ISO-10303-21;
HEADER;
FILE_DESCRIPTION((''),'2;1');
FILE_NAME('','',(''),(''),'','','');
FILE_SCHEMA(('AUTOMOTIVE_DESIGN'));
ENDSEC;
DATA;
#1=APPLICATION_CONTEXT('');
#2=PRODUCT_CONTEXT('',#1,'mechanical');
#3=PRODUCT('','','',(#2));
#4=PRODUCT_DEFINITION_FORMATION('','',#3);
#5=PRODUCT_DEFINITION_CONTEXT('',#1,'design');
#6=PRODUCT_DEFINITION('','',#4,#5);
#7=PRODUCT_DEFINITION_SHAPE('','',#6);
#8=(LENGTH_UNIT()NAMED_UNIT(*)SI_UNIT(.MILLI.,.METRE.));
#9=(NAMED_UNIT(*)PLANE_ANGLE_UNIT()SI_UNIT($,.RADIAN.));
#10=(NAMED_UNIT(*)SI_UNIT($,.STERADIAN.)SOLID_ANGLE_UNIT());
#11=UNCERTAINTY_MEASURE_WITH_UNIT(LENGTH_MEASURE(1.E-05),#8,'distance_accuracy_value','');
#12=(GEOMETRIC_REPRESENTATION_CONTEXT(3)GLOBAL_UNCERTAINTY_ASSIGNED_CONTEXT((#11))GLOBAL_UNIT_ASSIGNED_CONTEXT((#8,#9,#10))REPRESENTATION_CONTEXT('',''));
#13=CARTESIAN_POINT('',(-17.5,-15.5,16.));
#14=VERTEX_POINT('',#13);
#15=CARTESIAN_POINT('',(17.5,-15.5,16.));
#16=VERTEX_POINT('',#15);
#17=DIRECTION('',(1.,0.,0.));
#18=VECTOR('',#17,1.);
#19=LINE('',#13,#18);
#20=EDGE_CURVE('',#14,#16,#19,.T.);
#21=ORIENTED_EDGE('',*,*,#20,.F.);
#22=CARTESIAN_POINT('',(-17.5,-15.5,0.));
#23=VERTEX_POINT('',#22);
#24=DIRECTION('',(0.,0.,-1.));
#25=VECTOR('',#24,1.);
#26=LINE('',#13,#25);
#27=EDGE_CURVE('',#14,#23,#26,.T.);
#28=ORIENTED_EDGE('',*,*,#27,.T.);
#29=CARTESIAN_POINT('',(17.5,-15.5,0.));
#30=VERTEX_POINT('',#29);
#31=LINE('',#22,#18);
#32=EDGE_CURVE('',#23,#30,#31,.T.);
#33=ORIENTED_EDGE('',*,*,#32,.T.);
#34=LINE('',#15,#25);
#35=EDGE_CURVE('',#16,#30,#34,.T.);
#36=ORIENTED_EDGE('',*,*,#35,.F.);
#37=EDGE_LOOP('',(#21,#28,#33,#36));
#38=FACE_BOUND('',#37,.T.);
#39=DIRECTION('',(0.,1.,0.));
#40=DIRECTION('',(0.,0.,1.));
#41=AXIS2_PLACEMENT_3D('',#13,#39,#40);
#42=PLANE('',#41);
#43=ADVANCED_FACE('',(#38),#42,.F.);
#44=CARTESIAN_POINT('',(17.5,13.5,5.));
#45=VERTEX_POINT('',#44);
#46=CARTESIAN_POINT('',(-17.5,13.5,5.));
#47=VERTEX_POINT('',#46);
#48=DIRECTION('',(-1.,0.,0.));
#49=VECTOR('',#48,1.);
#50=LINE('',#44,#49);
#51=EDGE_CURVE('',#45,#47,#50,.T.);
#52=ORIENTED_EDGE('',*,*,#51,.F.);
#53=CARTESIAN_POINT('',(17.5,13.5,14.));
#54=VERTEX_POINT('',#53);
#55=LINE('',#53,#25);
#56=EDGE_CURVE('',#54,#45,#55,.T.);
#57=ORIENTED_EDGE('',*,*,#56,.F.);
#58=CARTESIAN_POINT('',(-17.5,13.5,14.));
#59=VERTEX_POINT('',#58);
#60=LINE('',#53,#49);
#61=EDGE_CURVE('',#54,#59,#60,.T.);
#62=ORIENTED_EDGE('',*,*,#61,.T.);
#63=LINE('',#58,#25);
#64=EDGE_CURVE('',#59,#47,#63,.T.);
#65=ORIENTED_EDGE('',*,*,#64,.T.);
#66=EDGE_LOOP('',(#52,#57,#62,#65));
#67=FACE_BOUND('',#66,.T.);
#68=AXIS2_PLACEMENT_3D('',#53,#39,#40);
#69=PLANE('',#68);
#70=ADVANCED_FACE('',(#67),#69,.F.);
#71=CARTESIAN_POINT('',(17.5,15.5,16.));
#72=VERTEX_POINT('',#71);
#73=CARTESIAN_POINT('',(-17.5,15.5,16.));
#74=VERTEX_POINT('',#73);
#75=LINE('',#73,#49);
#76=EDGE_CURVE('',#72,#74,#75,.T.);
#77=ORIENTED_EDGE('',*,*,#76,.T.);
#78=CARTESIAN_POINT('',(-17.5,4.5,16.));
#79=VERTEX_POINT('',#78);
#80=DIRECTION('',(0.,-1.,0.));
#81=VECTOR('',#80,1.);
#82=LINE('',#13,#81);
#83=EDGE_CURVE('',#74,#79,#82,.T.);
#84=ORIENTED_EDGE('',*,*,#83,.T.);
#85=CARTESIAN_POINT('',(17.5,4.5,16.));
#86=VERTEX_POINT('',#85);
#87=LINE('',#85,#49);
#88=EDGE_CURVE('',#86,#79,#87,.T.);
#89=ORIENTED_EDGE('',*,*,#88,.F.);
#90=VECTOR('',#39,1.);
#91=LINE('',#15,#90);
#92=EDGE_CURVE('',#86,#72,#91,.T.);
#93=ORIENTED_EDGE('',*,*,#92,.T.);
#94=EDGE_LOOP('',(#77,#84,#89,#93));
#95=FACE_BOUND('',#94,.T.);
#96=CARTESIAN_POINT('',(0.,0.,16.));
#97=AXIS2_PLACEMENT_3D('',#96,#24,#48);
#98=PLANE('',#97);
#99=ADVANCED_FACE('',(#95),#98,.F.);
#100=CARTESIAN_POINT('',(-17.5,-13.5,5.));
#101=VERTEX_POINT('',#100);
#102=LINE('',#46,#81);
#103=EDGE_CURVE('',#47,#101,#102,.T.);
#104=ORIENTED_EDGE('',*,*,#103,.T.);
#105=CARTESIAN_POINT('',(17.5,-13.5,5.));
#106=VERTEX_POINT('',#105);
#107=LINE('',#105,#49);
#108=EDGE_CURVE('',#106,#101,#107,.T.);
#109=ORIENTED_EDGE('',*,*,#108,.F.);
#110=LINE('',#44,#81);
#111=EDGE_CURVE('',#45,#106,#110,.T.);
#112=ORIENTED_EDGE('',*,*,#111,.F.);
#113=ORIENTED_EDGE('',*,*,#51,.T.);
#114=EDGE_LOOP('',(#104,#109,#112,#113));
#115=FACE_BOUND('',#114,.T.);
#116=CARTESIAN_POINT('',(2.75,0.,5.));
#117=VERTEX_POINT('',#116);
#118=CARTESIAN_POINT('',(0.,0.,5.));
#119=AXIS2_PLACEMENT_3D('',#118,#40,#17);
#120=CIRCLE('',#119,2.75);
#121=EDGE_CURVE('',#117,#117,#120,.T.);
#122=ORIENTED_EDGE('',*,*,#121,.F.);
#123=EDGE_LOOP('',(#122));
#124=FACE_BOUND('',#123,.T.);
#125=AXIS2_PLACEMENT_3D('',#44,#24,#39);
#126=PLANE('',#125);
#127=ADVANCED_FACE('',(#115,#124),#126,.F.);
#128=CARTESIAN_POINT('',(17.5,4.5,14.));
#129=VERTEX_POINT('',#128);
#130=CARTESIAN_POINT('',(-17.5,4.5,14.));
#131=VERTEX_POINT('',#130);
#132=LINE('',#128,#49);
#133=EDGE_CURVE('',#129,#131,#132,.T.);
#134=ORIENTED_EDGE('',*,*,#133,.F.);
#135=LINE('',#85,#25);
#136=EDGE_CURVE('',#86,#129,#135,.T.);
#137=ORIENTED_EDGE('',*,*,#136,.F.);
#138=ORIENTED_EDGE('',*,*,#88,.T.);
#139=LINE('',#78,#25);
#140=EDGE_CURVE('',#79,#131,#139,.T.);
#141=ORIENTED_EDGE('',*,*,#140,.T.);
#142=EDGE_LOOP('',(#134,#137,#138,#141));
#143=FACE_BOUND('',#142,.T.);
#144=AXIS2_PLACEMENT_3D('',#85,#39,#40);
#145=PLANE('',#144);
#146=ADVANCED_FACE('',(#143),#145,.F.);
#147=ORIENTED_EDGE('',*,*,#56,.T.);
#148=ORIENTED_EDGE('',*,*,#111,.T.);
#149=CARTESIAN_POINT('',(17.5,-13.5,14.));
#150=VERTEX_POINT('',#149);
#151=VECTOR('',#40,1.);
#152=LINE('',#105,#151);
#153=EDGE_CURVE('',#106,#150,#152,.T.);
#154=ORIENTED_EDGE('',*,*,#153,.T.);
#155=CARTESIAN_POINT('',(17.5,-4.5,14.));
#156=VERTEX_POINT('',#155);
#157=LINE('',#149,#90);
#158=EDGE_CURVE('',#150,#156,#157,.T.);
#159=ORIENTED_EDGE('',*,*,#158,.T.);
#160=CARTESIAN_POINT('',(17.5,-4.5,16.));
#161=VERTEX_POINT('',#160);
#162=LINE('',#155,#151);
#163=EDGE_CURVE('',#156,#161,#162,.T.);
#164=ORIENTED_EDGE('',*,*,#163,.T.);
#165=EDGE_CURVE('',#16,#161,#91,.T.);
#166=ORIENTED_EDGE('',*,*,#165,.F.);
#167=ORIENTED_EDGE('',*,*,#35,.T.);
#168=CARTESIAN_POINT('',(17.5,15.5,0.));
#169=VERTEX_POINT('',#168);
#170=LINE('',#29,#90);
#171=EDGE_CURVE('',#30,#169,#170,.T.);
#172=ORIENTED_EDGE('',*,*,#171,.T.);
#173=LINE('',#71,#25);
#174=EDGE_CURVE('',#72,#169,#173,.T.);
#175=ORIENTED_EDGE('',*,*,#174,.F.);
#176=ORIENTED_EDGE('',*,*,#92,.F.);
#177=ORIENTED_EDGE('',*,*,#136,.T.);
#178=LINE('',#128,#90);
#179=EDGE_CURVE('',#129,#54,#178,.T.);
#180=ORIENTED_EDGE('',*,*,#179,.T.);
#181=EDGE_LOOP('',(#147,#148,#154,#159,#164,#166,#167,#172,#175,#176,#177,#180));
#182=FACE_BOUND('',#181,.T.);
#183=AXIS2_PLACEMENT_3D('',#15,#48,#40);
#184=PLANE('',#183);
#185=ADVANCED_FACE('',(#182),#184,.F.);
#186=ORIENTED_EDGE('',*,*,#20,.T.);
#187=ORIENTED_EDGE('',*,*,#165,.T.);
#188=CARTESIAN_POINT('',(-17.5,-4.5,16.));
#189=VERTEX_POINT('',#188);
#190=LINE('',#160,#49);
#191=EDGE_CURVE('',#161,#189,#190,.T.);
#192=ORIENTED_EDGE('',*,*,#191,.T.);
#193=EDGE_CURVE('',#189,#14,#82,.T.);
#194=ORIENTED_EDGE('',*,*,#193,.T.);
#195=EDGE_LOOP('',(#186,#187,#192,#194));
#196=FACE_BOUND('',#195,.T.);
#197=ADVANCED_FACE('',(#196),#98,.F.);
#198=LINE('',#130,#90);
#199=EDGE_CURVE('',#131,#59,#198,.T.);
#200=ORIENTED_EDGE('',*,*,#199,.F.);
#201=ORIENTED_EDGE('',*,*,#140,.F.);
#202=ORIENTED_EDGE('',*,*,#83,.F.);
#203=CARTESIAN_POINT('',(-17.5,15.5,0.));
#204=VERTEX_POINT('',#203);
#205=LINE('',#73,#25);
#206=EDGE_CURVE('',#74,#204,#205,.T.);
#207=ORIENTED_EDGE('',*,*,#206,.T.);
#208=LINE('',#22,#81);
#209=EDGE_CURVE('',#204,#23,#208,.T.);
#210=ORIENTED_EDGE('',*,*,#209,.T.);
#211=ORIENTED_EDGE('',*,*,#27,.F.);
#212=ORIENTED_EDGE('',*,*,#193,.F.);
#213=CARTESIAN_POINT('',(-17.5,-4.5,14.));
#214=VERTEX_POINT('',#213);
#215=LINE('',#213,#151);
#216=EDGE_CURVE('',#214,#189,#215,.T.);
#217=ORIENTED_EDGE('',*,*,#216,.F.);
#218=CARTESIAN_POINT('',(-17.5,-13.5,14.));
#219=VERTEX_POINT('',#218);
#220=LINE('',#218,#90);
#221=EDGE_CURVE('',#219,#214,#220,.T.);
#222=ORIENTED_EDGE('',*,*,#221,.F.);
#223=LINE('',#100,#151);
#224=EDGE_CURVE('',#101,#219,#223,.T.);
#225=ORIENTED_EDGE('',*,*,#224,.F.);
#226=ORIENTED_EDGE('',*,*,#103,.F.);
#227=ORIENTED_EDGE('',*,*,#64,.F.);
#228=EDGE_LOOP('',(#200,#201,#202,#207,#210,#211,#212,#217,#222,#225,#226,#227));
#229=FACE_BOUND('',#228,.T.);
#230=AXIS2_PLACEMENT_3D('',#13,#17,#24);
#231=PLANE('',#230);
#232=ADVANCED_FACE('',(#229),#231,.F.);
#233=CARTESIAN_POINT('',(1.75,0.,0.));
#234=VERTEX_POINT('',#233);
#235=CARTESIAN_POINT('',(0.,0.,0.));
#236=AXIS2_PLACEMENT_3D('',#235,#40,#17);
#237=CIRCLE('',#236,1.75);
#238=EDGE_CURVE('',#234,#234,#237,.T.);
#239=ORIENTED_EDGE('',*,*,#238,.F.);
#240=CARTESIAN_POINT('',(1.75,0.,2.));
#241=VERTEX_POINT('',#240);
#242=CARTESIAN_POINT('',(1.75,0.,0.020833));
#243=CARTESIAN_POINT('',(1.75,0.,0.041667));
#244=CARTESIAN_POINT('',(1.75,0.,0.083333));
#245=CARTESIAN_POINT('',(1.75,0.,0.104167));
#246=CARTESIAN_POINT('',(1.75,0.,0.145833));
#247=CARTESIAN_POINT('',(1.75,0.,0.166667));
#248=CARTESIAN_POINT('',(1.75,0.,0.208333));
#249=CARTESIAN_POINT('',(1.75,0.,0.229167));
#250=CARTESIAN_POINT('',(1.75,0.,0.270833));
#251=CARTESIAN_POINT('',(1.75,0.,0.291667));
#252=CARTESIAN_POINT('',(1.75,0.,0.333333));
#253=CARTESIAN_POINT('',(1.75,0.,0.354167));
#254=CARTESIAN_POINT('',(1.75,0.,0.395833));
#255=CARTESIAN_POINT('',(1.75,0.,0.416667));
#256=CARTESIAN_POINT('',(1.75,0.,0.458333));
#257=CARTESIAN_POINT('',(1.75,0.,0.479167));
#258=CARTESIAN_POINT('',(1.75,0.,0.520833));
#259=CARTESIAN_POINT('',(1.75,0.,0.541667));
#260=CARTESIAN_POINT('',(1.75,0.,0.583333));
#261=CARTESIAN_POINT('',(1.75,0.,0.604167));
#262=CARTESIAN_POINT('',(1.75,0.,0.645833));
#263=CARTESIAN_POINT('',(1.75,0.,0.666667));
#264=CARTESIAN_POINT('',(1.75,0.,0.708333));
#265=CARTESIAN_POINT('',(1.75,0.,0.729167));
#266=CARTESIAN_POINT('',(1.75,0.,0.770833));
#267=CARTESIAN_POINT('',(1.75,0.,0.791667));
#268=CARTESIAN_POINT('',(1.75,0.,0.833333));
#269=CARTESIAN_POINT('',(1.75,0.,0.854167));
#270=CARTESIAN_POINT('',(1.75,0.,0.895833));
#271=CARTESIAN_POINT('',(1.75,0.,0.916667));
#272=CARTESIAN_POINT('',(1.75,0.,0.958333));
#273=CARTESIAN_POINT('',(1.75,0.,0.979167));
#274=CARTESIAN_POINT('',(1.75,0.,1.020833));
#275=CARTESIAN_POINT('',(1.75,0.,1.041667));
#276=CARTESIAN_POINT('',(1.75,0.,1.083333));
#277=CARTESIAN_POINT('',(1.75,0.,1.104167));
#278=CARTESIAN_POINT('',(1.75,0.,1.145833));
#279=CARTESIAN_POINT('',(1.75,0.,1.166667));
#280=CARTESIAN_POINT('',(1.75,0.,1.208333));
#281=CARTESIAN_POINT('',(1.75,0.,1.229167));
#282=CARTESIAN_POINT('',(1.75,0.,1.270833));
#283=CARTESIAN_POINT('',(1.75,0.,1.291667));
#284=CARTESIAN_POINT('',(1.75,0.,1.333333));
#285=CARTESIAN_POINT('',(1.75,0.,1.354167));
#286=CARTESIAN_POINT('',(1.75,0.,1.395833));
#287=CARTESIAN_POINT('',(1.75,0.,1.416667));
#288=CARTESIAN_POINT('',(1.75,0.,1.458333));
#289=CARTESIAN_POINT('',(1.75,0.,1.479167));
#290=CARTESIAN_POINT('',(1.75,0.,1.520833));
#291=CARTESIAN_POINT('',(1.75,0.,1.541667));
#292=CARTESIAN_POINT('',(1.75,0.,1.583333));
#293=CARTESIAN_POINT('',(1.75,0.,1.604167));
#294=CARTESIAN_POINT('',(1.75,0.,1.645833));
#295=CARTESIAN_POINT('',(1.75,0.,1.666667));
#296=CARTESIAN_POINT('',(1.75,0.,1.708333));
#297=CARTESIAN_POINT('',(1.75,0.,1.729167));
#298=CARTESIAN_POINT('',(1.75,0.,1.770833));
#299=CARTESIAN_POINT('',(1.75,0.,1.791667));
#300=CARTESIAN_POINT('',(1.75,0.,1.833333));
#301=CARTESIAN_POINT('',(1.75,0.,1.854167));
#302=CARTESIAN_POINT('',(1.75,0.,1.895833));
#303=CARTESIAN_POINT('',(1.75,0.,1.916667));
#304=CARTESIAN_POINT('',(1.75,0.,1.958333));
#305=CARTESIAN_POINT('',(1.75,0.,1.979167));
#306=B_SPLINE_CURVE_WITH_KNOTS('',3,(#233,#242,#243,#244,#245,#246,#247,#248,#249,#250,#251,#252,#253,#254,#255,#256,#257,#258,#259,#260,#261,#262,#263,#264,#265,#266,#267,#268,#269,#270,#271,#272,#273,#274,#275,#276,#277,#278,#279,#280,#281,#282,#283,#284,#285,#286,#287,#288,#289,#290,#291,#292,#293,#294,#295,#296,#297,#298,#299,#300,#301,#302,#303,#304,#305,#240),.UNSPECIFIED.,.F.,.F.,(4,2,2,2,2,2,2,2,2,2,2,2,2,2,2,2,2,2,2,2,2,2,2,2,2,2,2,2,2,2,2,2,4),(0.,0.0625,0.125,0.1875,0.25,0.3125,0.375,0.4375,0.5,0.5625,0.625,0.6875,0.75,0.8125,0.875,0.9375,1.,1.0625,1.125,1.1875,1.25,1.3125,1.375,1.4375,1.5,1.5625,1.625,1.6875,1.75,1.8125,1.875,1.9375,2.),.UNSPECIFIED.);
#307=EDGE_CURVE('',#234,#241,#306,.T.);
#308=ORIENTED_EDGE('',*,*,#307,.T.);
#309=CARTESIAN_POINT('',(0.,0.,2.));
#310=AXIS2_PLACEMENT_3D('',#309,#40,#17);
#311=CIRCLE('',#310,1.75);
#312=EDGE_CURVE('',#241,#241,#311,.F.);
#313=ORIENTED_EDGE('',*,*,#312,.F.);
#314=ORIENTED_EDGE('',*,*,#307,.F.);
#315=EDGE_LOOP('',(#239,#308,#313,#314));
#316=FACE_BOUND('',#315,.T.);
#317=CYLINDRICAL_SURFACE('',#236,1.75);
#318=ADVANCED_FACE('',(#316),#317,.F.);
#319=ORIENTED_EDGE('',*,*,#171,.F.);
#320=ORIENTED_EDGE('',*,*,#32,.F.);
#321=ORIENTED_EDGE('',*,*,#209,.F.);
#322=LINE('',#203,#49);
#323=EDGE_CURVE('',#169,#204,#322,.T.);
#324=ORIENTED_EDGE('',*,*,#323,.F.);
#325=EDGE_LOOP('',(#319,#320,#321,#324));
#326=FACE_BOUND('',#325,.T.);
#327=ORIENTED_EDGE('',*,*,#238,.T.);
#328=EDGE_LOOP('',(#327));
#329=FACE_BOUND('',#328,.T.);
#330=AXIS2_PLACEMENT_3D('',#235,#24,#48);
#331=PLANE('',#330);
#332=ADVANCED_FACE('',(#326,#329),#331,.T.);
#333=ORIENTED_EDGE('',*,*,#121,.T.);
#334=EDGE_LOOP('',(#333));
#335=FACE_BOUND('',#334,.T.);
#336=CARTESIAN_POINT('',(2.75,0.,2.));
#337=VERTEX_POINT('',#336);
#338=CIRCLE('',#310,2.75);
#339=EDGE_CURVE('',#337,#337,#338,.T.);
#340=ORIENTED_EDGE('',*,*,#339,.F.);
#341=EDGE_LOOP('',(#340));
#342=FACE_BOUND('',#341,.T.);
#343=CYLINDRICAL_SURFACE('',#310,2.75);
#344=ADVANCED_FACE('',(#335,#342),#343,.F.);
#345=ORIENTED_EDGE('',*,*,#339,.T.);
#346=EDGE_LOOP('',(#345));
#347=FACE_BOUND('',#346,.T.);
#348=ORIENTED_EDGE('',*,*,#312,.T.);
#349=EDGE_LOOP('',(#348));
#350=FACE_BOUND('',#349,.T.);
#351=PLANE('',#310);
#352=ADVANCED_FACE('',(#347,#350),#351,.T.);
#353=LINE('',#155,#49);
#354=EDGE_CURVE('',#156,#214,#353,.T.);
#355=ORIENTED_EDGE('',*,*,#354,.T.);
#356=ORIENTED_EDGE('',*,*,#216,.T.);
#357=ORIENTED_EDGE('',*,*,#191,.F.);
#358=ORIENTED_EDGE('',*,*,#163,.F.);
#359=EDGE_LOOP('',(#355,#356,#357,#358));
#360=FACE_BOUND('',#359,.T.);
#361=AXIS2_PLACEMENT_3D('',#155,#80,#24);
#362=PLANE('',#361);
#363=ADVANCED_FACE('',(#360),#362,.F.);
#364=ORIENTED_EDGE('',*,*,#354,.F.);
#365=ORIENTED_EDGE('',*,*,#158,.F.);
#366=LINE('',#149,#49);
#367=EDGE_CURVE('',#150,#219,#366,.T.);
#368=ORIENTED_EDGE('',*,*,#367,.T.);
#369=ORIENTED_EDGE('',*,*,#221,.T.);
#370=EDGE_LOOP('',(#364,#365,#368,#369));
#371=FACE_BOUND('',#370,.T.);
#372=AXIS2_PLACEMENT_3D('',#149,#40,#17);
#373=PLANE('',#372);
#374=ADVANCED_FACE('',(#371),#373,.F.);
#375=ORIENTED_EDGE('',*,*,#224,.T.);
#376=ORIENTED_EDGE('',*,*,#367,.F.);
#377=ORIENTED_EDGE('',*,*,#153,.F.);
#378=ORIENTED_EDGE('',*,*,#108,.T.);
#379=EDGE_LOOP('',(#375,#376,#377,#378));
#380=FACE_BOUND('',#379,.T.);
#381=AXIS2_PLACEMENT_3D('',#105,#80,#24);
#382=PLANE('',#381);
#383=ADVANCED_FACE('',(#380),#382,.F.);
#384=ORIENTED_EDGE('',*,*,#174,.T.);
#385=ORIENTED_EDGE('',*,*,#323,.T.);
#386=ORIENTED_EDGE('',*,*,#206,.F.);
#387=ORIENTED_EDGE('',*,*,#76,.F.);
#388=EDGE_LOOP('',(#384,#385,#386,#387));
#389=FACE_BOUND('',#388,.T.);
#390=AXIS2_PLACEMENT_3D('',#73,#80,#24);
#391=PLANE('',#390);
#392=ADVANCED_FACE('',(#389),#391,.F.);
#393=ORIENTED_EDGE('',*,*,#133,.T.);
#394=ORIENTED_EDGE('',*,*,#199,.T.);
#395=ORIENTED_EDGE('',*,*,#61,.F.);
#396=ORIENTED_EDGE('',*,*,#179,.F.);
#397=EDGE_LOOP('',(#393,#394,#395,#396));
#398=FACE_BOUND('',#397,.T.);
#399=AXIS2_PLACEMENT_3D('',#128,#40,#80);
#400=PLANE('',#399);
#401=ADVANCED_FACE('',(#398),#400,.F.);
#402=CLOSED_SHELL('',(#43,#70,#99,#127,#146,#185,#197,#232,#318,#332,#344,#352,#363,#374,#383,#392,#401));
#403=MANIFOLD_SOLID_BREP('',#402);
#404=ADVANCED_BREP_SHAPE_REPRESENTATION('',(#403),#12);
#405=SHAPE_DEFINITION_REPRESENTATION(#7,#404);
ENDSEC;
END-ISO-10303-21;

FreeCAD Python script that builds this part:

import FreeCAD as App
import Part
import Sketcher

doc = App.newDocument("Part")
body = doc.addObject("PartDesign::Body", "Body")

sketch1 = body.newObject("Sketcher::SketchObject", "Sketch")
sketch1.AttachmentSupport = (doc.getObject("XY_Plane"), [""])
sketch1.MapMode = "FlatFace"
sketch1.addGeometry([
    Part.LineSegment(App.Vector(-18, 16, 0), App.Vector(-18, -16, 0)),
    Part.LineSegment(App.Vector(-18, -16, 0), App.Vector(18, -16, 0)),
    Part.LineSegment(App.Vector(18, -16, 0), App.Vector(18, 16, 0)),
    Part.LineSegment(App.Vector(18, 16, 0), App.Vector(-18, 16, 0)),
], False)
sketch1.addConstraint([
    Sketcher.Constraint("Coincident", 0, 2, 1, 1),
    Sketcher.Constraint("Coincident", 1, 2, 2, 1),
    Sketcher.Constraint("Coincident", 2, 2, 3, 1),
    Sketcher.Constraint("Coincident", 3, 2, 0, 1),
    Sketcher.Constraint("Vertical", 0),
    Sketcher.Constraint("Horizontal", 1),
    Sketcher.Constraint("Vertical", 2),
    Sketcher.Constraint("Horizontal", 3),
    Sketcher.Constraint("Symmetric", 0, 2, 2, 2, -1, 1),
    Sketcher.Constraint("DistanceX", 1, 1, 1, 2, 35.0),
    Sketcher.Constraint("DistanceY", 0, 2, 0, 1, 31.0),
])
pad1 = body.newObject("PartDesign::Pad", "Pad")
pad1.Profile = sketch1
pad1.Length = 16

sketch2 = body.newObject("Sketcher::SketchObject", "Sketch001")
sketch2.AttachmentSupport = (doc.getObject("YZ_Plane"), [""])
sketch2.MapMode = "FlatFace"
sketch2.AttachmentOffset = App.Placement(App.Vector(0, 0, -17.5), App.Rotation())
sketch2.addGeometry([
    Part.LineSegment(App.Vector(13.5, 5, 0), App.Vector(-13.5, 5, 0)),
    Part.LineSegment(App.Vector(-13.5, 5, 0), App.Vector(-13.5, 14, 0)),
    Part.LineSegment(App.Vector(-13.5, 14, 0), App.Vector(-4.5, 14, 0)),
    Part.LineSegment(App.Vector(-4.5, 14, 0), App.Vector(-4.5, 16, 0)),
    Part.LineSegment(App.Vector(-4.5, 16, 0), App.Vector(4.5, 16, 0)),
    Part.LineSegment(App.Vector(4.5, 16, 0), App.Vector(4.5, 14, 0)),
    Part.LineSegment(App.Vector(4.5, 14, 0), App.Vector(13.5, 14, 0)),
    Part.LineSegment(App.Vector(13.5, 14, 0), App.Vector(13.5, 5, 0)),
], False)
sketch2.addConstraint([
    Sketcher.Constraint("Coincident", 0, 2, 1, 1),
    Sketcher.Constraint("Coincident", 1, 2, 2, 1),
    Sketcher.Constraint("Coincident", 2, 2, 3, 1),
    Sketcher.Constraint("Coincident", 3, 2, 4, 1),
    Sketcher.Constraint("Coincident", 4, 2, 5, 1),
    Sketcher.Constraint("Coincident", 5, 2, 6, 1),
    Sketcher.Constraint("Coincident", 6, 2, 7, 1),
    Sketcher.Constraint("Coincident", 7, 2, 0, 1),
    Sketcher.Constraint("Horizontal", 0),
    Sketcher.Constraint("Vertical", 1),
    Sketcher.Constraint("Horizontal", 2),
    Sketcher.Constraint("Vertical", 3),
    Sketcher.Constraint("Horizontal", 4),
    Sketcher.Constraint("Vertical", 5),
    Sketcher.Constraint("Horizontal", 6),
    Sketcher.Constraint("Vertical", 7),
    Sketcher.Constraint("Symmetric", 2, 2, 5, 2, -2),
    Sketcher.Constraint("Equal", 2, 4),
    Sketcher.Constraint("Equal", 4, 6),
    Sketcher.Constraint("Equal", 6, 1),
    Sketcher.Constraint("DistanceX", 0, 2, 0, 1, 27.0),
    Sketcher.Constraint("DistanceY", 3, 1, 3, 2, 2.0),
    Sketcher.Constraint("DistanceY", -1, 1, 0, 2, 5.0),
])
pocket1 = body.newObject("PartDesign::Pocket", "Pocket")
pocket1.Profile = sketch2
pocket1.Length = 35
pocket1.Reversed = True

sketch3 = body.newObject("Sketcher::SketchObject", "Sketch002")
sketch3.AttachmentSupport = (doc.getObject("XY_Plane"), [""])
sketch3.MapMode = "FlatFace"
sketch3.AttachmentOffset = App.Placement(App.Vector(0, 0, 5), App.Rotation())
sketch3.addGeometry(Part.Circle(App.Vector(0, 0, 0), App.Vector(0, 0, 1), 1.8), False)
sketch3.addConstraint([
    Sketcher.Constraint("Coincident", 0, 3, -1, 1),
    Sketcher.Constraint("Diameter", 0, 3.5),
])
pocket2 = body.newObject("PartDesign::Pocket", "Pocket001")
pocket2.Profile = sketch3
pocket2.Length = 5

sketch4 = body.newObject("Sketcher::SketchObject", "Sketch003")
sketch4.AttachmentSupport = (doc.getObject("XY_Plane"), [""])
sketch4.MapMode = "FlatFace"
sketch4.AttachmentOffset = App.Placement(App.Vector(0, 0, 5), App.Rotation())
sketch4.addGeometry(Part.Circle(App.Vector(0, 0, 0), App.Vector(0, 0, 1), 2.8), False)
sketch4.addConstraint([
    Sketcher.Constraint("Coincident", 0, 3, -1, 1),
    Sketcher.Constraint("Diameter", 0, 5.5),
])
pocket3 = body.newObject("PartDesign::Pocket", "Pocket002")
pocket3.Profile = sketch4
pocket3.Length = 3

doc.recompute()
